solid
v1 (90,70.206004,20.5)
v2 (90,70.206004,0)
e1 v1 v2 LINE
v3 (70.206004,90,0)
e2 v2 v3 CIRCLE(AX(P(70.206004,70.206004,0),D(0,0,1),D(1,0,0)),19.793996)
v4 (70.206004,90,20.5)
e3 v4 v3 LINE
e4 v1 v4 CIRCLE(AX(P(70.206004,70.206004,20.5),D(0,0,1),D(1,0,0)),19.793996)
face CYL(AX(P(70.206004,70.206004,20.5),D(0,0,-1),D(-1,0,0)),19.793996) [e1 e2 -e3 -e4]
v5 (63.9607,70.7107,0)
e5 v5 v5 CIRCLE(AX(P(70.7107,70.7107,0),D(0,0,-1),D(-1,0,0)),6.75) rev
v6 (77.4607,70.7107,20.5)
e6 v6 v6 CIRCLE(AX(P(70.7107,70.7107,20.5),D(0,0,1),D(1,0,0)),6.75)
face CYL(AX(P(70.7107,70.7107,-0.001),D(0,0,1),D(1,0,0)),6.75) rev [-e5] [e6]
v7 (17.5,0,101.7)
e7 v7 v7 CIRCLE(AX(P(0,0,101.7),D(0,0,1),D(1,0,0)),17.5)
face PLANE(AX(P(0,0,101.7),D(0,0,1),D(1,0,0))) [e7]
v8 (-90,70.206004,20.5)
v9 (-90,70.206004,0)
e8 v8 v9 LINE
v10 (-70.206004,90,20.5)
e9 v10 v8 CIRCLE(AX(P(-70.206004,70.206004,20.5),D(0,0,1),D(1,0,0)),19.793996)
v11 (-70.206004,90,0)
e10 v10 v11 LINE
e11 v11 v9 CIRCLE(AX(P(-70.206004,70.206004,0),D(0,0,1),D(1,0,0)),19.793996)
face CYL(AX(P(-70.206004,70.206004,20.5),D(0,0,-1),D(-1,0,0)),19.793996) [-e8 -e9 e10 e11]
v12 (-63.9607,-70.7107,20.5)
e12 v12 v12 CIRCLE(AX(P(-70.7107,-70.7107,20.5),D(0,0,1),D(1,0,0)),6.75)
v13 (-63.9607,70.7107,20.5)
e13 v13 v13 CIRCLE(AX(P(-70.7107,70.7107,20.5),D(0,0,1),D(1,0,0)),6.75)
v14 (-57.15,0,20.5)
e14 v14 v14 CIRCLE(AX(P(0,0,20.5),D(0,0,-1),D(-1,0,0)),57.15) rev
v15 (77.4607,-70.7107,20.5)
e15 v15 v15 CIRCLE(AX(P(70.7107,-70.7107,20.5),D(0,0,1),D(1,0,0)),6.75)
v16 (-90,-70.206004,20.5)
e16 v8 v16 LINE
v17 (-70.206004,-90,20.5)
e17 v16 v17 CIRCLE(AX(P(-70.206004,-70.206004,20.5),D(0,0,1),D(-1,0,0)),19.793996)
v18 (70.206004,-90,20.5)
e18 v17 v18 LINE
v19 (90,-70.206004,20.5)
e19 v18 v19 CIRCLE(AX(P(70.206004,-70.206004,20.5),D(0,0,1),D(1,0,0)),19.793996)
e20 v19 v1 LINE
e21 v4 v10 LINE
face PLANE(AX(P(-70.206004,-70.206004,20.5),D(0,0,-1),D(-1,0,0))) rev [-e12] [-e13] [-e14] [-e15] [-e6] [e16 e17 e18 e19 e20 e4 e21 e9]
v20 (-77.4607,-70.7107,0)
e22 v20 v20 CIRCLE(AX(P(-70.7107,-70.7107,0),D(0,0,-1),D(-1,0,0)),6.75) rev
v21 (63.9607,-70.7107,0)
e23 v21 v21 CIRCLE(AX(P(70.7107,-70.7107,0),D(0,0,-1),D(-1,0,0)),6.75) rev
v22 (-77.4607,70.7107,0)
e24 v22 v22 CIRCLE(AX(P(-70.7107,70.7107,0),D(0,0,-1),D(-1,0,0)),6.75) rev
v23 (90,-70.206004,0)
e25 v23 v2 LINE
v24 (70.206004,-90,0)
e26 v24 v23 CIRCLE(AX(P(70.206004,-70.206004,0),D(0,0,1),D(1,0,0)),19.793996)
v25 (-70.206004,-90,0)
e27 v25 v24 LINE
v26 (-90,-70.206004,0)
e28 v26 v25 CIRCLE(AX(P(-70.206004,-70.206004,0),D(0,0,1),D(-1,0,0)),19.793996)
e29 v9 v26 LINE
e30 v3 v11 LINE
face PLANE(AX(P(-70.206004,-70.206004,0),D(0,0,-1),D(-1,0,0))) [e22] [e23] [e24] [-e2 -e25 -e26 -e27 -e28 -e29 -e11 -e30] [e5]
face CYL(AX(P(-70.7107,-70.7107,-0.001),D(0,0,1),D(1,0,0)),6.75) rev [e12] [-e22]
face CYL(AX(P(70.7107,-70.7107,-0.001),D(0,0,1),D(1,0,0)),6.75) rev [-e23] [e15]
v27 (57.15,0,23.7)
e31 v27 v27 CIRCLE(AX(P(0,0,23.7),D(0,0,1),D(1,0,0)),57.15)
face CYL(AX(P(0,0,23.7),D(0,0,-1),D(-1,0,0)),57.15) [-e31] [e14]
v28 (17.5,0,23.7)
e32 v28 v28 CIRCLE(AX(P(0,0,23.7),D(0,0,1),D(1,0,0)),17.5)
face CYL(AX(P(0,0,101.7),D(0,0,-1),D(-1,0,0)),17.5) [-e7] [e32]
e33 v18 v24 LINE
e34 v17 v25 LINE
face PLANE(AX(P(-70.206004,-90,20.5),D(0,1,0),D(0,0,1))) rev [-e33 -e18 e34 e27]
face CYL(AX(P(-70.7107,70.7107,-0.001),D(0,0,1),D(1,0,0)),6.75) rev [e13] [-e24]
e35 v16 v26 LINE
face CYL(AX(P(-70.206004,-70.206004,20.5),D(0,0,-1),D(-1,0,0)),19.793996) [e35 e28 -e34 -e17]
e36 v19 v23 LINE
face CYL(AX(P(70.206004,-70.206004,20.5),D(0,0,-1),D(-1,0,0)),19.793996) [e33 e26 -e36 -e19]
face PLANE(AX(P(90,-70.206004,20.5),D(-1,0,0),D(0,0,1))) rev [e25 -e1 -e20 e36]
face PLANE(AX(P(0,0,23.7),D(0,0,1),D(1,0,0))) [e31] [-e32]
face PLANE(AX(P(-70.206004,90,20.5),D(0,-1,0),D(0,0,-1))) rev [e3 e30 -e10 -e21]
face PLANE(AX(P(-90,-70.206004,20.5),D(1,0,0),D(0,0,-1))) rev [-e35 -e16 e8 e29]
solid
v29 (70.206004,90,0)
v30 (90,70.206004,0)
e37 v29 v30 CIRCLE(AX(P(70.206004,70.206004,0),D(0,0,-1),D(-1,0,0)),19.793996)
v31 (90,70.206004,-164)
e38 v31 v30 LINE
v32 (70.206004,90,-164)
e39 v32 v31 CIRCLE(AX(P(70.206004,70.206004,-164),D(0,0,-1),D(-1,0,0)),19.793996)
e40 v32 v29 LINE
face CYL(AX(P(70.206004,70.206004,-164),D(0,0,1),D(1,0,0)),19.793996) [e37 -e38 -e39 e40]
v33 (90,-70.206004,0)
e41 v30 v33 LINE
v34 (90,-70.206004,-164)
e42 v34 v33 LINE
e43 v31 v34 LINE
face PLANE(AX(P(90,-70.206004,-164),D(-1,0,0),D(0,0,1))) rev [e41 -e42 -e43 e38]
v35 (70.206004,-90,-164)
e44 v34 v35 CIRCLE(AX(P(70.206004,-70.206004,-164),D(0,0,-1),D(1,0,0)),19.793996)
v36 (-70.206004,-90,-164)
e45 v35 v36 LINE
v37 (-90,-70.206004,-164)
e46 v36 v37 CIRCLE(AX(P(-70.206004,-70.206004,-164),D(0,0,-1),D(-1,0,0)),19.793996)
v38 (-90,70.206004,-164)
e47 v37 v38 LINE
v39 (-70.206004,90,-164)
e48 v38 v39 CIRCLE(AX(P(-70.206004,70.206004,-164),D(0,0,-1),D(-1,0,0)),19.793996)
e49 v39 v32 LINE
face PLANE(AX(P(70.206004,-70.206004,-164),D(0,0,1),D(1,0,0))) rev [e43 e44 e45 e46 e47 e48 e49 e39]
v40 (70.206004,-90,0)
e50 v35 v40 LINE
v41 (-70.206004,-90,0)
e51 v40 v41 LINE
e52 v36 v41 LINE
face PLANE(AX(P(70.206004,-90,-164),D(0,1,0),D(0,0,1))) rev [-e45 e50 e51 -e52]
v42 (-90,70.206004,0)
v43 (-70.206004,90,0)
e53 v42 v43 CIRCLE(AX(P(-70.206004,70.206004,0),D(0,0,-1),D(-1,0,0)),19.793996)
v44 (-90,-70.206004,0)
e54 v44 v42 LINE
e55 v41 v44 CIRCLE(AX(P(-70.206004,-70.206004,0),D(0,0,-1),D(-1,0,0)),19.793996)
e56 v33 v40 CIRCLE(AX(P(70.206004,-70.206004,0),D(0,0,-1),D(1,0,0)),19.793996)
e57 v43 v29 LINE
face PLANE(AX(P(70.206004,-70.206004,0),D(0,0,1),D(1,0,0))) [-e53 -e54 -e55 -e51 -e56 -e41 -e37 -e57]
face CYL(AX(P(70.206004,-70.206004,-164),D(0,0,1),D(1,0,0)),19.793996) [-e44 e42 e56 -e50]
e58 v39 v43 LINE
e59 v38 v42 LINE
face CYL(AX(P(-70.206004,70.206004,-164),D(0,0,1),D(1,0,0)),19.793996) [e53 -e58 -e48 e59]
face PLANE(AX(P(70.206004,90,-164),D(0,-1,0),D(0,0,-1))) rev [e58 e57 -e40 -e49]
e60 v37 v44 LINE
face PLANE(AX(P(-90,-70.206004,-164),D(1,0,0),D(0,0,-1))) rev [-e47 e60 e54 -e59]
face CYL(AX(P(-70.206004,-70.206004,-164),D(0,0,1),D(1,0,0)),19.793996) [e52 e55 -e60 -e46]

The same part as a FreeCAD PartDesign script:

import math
import FreeCAD as App
import Part
import Sketcher
from FreeCAD import Vector
Q = App.Units.Quantity

doc = App.newDocument("Part")
body = doc.addObject("PartDesign::Body", "Body")

# Sketch on XY plane
sketch1 = body.newObject("Sketcher::SketchObject", "Sketch")
sketch1.AttachmentSupport = (doc.getObject("XY_Plane"), [""])
sketch1.MapMode = "FlatFace"
sketch1.addGeometry([
    Part.LineSegment(Vector(-70, -90, 0), Vector(70, -90, 0)),  # 0
    Part.ArcOfCircle(Part.Circle(Vector(70, -70, 0), Vector(0, 0, 1), 20), math.radians(-90), math.radians(0)),  # 1
    Part.LineSegment(Vector(90, -70, 0), Vector(90, 70, 0)),  # 2
    Part.ArcOfCircle(Part.Circle(Vector(70, 70, 0), Vector(0, 0, 1), 20), math.radians(0), math.radians(90)),  # 3
    Part.LineSegment(Vector(70, 90, 0), Vector(-70, 90, 0)),  # 4
    Part.ArcOfCircle(Part.Circle(Vector(-70, 70, 0), Vector(0, 0, 1), 20), math.radians(90), math.radians(180)),  # 5
    Part.LineSegment(Vector(-90, 70, 0), Vector(-90, -70, 0)),  # 6
    Part.ArcOfCircle(Part.Circle(Vector(-70, -70, 0), Vector(0, 0, 1), 20), math.radians(180), math.radians(270)),  # 7
], False)
sketch1.addConstraint([
    Sketcher.Constraint("Tangent", 0, 2, 1, 1),
    Sketcher.Constraint("Tangent", 1, 2, 2, 1),
    Sketcher.Constraint("Tangent", 2, 2, 3, 1),
    Sketcher.Constraint("Tangent", 3, 2, 4, 1),
    Sketcher.Constraint("Tangent", 4, 2, 5, 1),
    Sketcher.Constraint("Tangent", 5, 2, 6, 1),
    Sketcher.Constraint("Tangent", 6, 2, 7, 1),
    Sketcher.Constraint("Tangent", 7, 2, 0, 1),
    Sketcher.Constraint("Horizontal", 0),
    Sketcher.Constraint("Vertical", 2),
    Sketcher.Constraint("Horizontal", 4),
    Sketcher.Constraint("Vertical", 6),
    Sketcher.Constraint("Equal", 1, 3),
    Sketcher.Constraint("Equal", 3, 5),
    Sketcher.Constraint("Equal", 5, 7),
    Sketcher.Constraint("Symmetric", 1, 3, 5, 3, -1, 1),
    Sketcher.Constraint("Equal", 4, 2),
    Sketcher.Constraint("DistanceY", 0, 2, -1, 1, Q("90 mm")),
    Sketcher.Constraint("Radius", 1, Q("19.793996 mm")),
])
pad1 = body.newObject("PartDesign::Pad", "Pad")
pad1.Profile = sketch1
pad1.Length = 20.5

# Sketch on XY plane
sketch2 = body.newObject("Sketcher::SketchObject", "Sketch001")
sketch2.AttachmentSupport = (doc.getObject("XY_Plane"), [""])
sketch2.MapMode = "FlatFace"
sketch2.AttachmentOffset = App.Placement(Vector(0, 0, 20.5), App.Rotation())
sketch2.addGeometry(Part.Circle(Vector(-71, 71, 0), Vector(0, 0, 1), 7), False)
sketch2.addConstraint([
    Sketcher.Constraint("Diameter", 0, Q("13.5 mm")),
    Sketcher.Constraint("DistanceX", 0, 3, -1, 1, Q("70.7107 mm")),
    Sketcher.Constraint("DistanceY", -1, 1, 0, 3, Q("70.7107 mm")),
])
pocket1 = body.newObject("PartDesign::Pocket", "Pocket")
pocket1.Profile = sketch2
pocket1.Type = "UpToFirst"

# Sketch on XY plane
sketch3 = body.newObject("Sketcher::SketchObject", "Sketch002")
sketch3.AttachmentSupport = (doc.getObject("XY_Plane"), [""])
sketch3.MapMode = "FlatFace"
sketch3.AttachmentOffset = App.Placement(Vector(0, 0, 20.5), App.Rotation())
sketch3.addGeometry(Part.Circle(Vector(71, 71, 0), Vector(0, 0, 1), 7), False)
sketch3.addConstraint([
    Sketcher.Constraint("Diameter", 0, Q("13.5 mm")),
    Sketcher.Constraint("DistanceX", -1, 1, 0, 3, Q("70.7107 mm")),
    Sketcher.Constraint("DistanceY", -1, 1, 0, 3, Q("70.7107 mm")),
])
pocket2 = body.newObject("PartDesign::Pocket", "Pocket001")
pocket2.Profile = sketch3
pocket2.Type = "UpToFirst"

# Sketch on XY plane
sketch4 = body.newObject("Sketcher::SketchObject", "Sketch003")
sketch4.AttachmentSupport = (doc.getObject("XY_Plane"), [""])
sketch4.MapMode = "FlatFace"
sketch4.AttachmentOffset = App.Placement(Vector(0, 0, 20.5), App.Rotation())
sketch4.addGeometry(Part.Circle(Vector(71, -71, 0), Vector(0, 0, 1), 7), False)
sketch4.addConstraint([
    Sketcher.Constraint("Diameter", 0, Q("13.5 mm")),
    Sketcher.Constraint("DistanceX", -1, 1, 0, 3, Q("70.7107 mm")),
    Sketcher.Constraint("DistanceY", 0, 3, -1, 1, Q("70.7107 mm")),
])
pocket3 = body.newObject("PartDesign::Pocket", "Pocket002")
pocket3.Profile = sketch4
pocket3.Type = "UpToFirst"

# Sketch on XY plane
sketch5 = body.newObject("Sketcher::SketchObject", "Sketch004")
sketch5.AttachmentSupport = (doc.getObject("XY_Plane"), [""])
sketch5.MapMode = "FlatFace"
sketch5.AttachmentOffset = App.Placement(Vector(0, 0, 20.5), App.Rotation())
sketch5.addGeometry(Part.Circle(Vector(-71, -71, 0), Vector(0, 0, 1), 7), False)
sketch5.addConstraint([
    Sketcher.Constraint("Diameter", 0, Q("13.5 mm")),
    Sketcher.Constraint("DistanceX", 0, 3, -1, 1, Q("70.7107 mm")),
    Sketcher.Constraint("DistanceY", 0, 3, -1, 1, Q("70.7107 mm")),
])
pocket4 = body.newObject("PartDesign::Pocket", "Pocket003")
pocket4.Profile = sketch5
pocket4.Type = "UpToFirst"

# Sketch on XY plane
sketch6 = body.newObject("Sketcher::SketchObject", "Sketch005")
sketch6.AttachmentSupport = (doc.getObject("XY_Plane"), [""])
sketch6.MapMode = "FlatFace"
sketch6.AttachmentOffset = App.Placement(Vector(0, 0, 20.5), App.Rotation())
sketch6.addGeometry(Part.Circle(Vector(0, 0, 0), Vector(0, 0, 1), 57), False)
sketch6.addConstraint([
    Sketcher.Constraint("Coincident", 0, 3, -1, 1),
    Sketcher.Constraint("Diameter", 0, Q("114.3 mm")),
])
pad2 = body.newObject("PartDesign::Pad", "Pad001")
pad2.Profile = sketch6
pad2.Length = 3.2

# Sketch on XY plane
sketch7 = body.newObject("Sketcher::SketchObject", "Sketch006")
sketch7.AttachmentSupport = (doc.getObject("XY_Plane"), [""])
sketch7.MapMode = "FlatFace"
sketch7.AttachmentOffset = App.Placement(Vector(0, 0, 23.7), App.Rotation())
sketch7.addGeometry(Part.Circle(Vector(0, 0, 0), Vector(0, 0, 1), 18), False)
sketch7.addConstraint([
    Sketcher.Constraint("Coincident", 0, 3, -1, 1),
    Sketcher.Constraint("Diameter", 0, Q("35 mm")),
])
pad3 = body.newObject("PartDesign::Pad", "Pad002")
pad3.Profile = sketch7
pad3.Length = 78
body2 = doc.addObject("PartDesign::Body", "Body001")

# Sketch on XY plane
sketch8 = body2.newObject("Sketcher::SketchObject", "Sketch007")
sketch8.AttachmentSupport = (doc.getObject("XY_Plane001"), [""])
sketch8.MapMode = "FlatFace"
sketch8.addGeometry([
    Part.LineSegment(Vector(70, -90, 0), Vector(-70, -90, 0)),  # 0
    Part.ArcOfCircle(Part.Circle(Vector(-70, -70, 0), Vector(0, 0, 1), 20), math.radians(180), math.radians(270)),  # 1
    Part.LineSegment(Vector(-90, -70, 0), Vector(-90, 70, 0)),  # 2
    Part.ArcOfCircle(Part.Circle(Vector(-70, 70, 0), Vector(0, 0, 1), 20), math.radians(90), math.radians(180)),  # 3
    Part.LineSegment(Vector(-70, 90, 0), Vector(70, 90, 0)),  # 4
    Part.ArcOfCircle(Part.Circle(Vector(70, 70, 0), Vector(0, 0, 1), 20), math.radians(0), math.radians(90)),  # 5
    Part.LineSegment(Vector(90, 70, 0), Vector(90, -70, 0)),  # 6
    Part.ArcOfCircle(Part.Circle(Vector(70, -70, 0), Vector(0, 0, 1), 20), math.radians(-90), math.radians(0)),  # 7
], False)
sketch8.addConstraint([
    Sketcher.Constraint("Tangent", 0, 2, 1, 2),
    Sketcher.Constraint("Tangent", 1, 1, 2, 1),
    Sketcher.Constraint("Tangent", 2, 2, 3, 2),
    Sketcher.Constraint("Tangent", 3, 1, 4, 1),
    Sketcher.Constraint("Tangent", 4, 2, 5, 2),
    Sketcher.Constraint("Tangent", 5, 1, 6, 1),
    Sketcher.Constraint("Tangent", 6, 2, 7, 2),
    Sketcher.Constraint("Tangent", 7, 1, 0, 1),
    Sketcher.Constraint("Horizontal", 0),
    Sketcher.Constraint("Vertical", 2),
    Sketcher.Constraint("Horizontal", 4),
    Sketcher.Constraint("Vertical", 6),
    Sketcher.Constraint("Equal", 1, 3),
    Sketcher.Constraint("Equal", 3, 5),
    Sketcher.Constraint("Equal", 5, 7),
    Sketcher.Constraint("Symmetric", 1, 3, 5, 3, -1, 1),
    Sketcher.Constraint("Equal", 4, 2),
    Sketcher.Constraint("DistanceY", 0, 2, -1, 1, Q("90 mm")),
    Sketcher.Constraint("Radius", 1, Q("19.793996 mm")),
])
pad4 = body2.newObject("PartDesign::Pad", "Pad003")
pad4.Profile = sketch8
pad4.Length = 164
pad4.Reversed = True

doc.recompute()
